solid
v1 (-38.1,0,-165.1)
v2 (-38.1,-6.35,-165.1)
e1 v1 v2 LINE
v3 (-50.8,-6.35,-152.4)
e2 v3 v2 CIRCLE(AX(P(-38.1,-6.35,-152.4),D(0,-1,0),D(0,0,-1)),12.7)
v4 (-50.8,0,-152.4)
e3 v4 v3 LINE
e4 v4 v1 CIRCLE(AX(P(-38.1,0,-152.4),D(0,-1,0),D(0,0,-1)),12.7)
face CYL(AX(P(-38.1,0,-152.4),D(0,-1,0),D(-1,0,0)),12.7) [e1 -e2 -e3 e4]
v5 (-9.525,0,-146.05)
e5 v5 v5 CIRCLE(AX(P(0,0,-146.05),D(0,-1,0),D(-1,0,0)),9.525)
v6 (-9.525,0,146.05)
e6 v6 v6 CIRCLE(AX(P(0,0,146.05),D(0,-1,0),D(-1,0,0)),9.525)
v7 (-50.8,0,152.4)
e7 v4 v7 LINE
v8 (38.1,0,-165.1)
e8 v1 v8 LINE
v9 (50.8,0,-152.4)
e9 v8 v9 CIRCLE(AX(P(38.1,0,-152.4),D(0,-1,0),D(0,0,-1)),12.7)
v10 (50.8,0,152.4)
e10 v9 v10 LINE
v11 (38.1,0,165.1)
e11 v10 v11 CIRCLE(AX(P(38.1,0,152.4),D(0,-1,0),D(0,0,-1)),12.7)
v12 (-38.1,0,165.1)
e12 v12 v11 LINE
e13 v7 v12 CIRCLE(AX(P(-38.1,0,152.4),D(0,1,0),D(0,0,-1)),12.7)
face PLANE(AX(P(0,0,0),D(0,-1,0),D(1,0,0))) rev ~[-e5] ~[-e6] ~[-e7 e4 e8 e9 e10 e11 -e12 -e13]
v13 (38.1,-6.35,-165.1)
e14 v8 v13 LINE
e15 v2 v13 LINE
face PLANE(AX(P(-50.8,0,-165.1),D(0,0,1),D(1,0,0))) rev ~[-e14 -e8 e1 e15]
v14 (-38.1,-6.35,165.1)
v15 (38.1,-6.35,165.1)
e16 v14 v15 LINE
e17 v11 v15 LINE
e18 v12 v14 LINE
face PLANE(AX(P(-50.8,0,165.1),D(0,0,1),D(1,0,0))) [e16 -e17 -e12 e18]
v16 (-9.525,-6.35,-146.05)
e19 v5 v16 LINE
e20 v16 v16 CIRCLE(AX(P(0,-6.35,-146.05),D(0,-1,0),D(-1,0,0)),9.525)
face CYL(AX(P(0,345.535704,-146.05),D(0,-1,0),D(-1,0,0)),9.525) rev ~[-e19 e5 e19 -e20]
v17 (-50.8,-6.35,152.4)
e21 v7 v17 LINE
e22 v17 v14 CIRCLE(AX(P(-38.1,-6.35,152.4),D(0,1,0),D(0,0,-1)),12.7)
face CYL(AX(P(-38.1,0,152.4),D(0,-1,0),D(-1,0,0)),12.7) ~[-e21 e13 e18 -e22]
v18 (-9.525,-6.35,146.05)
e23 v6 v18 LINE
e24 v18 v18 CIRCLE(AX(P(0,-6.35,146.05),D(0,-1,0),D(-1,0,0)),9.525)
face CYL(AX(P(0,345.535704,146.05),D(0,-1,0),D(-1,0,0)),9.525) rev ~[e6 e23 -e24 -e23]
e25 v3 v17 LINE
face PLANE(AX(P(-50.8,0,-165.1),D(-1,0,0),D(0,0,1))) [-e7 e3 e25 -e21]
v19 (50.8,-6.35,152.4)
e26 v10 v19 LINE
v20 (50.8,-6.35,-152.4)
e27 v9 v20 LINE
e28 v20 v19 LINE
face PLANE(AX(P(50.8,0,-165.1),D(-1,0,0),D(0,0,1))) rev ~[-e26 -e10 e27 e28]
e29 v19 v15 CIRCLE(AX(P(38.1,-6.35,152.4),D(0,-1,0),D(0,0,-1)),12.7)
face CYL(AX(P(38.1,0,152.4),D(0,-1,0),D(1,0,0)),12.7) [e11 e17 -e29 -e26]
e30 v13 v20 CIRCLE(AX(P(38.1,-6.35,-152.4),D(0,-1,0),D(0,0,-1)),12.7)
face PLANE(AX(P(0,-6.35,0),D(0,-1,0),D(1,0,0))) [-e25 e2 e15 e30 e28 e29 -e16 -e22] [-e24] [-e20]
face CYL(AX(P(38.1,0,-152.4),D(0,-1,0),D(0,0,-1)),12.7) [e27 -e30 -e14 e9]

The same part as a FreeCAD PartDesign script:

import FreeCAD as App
import Part
import Sketcher

V = App.Vector
Q = App.Units.Quantity


def edges_at(feature, points):
    """Names of the edges that pass closest to the given points."""
    edges = feature.Shape.Edges
    near = lambda p: min(range(len(edges)), key=lambda i: edges[i].distToShape(Part.Vertex(*p))[0])
    return sorted({f"Edge{near(p) + 1}" for p in points})

doc = App.newDocument("Part")
body = doc.addObject("PartDesign::Body", "Body")

sketch1 = doc.addObject("Sketcher::SketchObject", "Sketch")
body.addObject(sketch1)
sketch1.AttachmentSupport = (doc.XZ_Plane, [""])
sketch1.MapMode = "FlatFace"
sketch1.addGeometry([
    Part.LineSegment(V(-51, 165, 0), V(-51, -165, 0)),
    Part.LineSegment(V(-51, -165, 0), V(51, -165, 0)),
    Part.LineSegment(V(51, -165, 0), V(51, 165, 0)),
    Part.LineSegment(V(51, 165, 0), V(-51, 165, 0)),
], False)
sketch1.addConstraint([
    Sketcher.Constraint("Coincident", 0, 2, 1, 1),
    Sketcher.Constraint("Coincident", 1, 2, 2, 1),
    Sketcher.Constraint("Coincident", 2, 2, 3, 1),
    Sketcher.Constraint("Coincident", 3, 2, 0, 1),
    Sketcher.Constraint("Vertical", 0),
    Sketcher.Constraint("Horizontal", 1),
    Sketcher.Constraint("Vertical", 2),
    Sketcher.Constraint("Horizontal", 3),
    Sketcher.Constraint("Symmetric", 0, 2, 2, 2, -1, 1),
    Sketcher.Constraint("DistanceX", 1, 1, 1, 2, Q("4 in")),
    Sketcher.Constraint("DistanceY", 0, 2, 0, 1, Q("13 in")),
])
pad1 = doc.addObject("PartDesign::Pad", "Pad")
body.addObject(pad1)
pad1.Profile = sketch1
pad1.Length = Q("0.25 in")
doc.recompute()

fillet = doc.addObject("PartDesign::Fillet", "Fillet")
body.addObject(fillet)
fillet.Base = (pad1, edges_at(pad1, [
    (50.8, -3.175, 165.1),
    (-50.8, -3.175, 165.1),
    (50.8, -3.175, -165.1),
    (-50.8, -3.175, -165.1),
]))
fillet.Radius = Q("0.5 in")

sketch2 = doc.addObject("Sketcher::SketchObject", "Sketch001")
body.addObject(sketch2)
sketch2.AttachmentSupport = (doc.XZ_Plane, [""])
sketch2.MapMode = "FlatFace"
sketch2.addGeometry([
    Part.Circle(V(0, -146, 0), V(0, 0, 1), 10),
    Part.Circle(V(0, 146, 0), V(0, 0, 1), 10),
], False)
sketch2.addConstraint([
    Sketcher.Constraint("Equal", 0, 1),
    Sketcher.Constraint("Symmetric", 0, 3, 1, 3, -1, 1),
    Sketcher.Constraint("PointOnObject", 0, 3, -2),
    Sketcher.Constraint("Diameter", 0, Q("0.75 in")),
    Sketcher.Constraint("DistanceY", 0, 3, 1, 3, Q("11.5 in")),
])
doc.recompute()
hole = doc.addObject("PartDesign::Hole", "Hole")
body.addObject(hole)
hole.Profile = sketch2
hole.ThreadType = "None"
hole.Diameter = Q("0.75 in")
hole.DepthType = "ThroughAll"
hole.Reversed = True

doc.recompute()
